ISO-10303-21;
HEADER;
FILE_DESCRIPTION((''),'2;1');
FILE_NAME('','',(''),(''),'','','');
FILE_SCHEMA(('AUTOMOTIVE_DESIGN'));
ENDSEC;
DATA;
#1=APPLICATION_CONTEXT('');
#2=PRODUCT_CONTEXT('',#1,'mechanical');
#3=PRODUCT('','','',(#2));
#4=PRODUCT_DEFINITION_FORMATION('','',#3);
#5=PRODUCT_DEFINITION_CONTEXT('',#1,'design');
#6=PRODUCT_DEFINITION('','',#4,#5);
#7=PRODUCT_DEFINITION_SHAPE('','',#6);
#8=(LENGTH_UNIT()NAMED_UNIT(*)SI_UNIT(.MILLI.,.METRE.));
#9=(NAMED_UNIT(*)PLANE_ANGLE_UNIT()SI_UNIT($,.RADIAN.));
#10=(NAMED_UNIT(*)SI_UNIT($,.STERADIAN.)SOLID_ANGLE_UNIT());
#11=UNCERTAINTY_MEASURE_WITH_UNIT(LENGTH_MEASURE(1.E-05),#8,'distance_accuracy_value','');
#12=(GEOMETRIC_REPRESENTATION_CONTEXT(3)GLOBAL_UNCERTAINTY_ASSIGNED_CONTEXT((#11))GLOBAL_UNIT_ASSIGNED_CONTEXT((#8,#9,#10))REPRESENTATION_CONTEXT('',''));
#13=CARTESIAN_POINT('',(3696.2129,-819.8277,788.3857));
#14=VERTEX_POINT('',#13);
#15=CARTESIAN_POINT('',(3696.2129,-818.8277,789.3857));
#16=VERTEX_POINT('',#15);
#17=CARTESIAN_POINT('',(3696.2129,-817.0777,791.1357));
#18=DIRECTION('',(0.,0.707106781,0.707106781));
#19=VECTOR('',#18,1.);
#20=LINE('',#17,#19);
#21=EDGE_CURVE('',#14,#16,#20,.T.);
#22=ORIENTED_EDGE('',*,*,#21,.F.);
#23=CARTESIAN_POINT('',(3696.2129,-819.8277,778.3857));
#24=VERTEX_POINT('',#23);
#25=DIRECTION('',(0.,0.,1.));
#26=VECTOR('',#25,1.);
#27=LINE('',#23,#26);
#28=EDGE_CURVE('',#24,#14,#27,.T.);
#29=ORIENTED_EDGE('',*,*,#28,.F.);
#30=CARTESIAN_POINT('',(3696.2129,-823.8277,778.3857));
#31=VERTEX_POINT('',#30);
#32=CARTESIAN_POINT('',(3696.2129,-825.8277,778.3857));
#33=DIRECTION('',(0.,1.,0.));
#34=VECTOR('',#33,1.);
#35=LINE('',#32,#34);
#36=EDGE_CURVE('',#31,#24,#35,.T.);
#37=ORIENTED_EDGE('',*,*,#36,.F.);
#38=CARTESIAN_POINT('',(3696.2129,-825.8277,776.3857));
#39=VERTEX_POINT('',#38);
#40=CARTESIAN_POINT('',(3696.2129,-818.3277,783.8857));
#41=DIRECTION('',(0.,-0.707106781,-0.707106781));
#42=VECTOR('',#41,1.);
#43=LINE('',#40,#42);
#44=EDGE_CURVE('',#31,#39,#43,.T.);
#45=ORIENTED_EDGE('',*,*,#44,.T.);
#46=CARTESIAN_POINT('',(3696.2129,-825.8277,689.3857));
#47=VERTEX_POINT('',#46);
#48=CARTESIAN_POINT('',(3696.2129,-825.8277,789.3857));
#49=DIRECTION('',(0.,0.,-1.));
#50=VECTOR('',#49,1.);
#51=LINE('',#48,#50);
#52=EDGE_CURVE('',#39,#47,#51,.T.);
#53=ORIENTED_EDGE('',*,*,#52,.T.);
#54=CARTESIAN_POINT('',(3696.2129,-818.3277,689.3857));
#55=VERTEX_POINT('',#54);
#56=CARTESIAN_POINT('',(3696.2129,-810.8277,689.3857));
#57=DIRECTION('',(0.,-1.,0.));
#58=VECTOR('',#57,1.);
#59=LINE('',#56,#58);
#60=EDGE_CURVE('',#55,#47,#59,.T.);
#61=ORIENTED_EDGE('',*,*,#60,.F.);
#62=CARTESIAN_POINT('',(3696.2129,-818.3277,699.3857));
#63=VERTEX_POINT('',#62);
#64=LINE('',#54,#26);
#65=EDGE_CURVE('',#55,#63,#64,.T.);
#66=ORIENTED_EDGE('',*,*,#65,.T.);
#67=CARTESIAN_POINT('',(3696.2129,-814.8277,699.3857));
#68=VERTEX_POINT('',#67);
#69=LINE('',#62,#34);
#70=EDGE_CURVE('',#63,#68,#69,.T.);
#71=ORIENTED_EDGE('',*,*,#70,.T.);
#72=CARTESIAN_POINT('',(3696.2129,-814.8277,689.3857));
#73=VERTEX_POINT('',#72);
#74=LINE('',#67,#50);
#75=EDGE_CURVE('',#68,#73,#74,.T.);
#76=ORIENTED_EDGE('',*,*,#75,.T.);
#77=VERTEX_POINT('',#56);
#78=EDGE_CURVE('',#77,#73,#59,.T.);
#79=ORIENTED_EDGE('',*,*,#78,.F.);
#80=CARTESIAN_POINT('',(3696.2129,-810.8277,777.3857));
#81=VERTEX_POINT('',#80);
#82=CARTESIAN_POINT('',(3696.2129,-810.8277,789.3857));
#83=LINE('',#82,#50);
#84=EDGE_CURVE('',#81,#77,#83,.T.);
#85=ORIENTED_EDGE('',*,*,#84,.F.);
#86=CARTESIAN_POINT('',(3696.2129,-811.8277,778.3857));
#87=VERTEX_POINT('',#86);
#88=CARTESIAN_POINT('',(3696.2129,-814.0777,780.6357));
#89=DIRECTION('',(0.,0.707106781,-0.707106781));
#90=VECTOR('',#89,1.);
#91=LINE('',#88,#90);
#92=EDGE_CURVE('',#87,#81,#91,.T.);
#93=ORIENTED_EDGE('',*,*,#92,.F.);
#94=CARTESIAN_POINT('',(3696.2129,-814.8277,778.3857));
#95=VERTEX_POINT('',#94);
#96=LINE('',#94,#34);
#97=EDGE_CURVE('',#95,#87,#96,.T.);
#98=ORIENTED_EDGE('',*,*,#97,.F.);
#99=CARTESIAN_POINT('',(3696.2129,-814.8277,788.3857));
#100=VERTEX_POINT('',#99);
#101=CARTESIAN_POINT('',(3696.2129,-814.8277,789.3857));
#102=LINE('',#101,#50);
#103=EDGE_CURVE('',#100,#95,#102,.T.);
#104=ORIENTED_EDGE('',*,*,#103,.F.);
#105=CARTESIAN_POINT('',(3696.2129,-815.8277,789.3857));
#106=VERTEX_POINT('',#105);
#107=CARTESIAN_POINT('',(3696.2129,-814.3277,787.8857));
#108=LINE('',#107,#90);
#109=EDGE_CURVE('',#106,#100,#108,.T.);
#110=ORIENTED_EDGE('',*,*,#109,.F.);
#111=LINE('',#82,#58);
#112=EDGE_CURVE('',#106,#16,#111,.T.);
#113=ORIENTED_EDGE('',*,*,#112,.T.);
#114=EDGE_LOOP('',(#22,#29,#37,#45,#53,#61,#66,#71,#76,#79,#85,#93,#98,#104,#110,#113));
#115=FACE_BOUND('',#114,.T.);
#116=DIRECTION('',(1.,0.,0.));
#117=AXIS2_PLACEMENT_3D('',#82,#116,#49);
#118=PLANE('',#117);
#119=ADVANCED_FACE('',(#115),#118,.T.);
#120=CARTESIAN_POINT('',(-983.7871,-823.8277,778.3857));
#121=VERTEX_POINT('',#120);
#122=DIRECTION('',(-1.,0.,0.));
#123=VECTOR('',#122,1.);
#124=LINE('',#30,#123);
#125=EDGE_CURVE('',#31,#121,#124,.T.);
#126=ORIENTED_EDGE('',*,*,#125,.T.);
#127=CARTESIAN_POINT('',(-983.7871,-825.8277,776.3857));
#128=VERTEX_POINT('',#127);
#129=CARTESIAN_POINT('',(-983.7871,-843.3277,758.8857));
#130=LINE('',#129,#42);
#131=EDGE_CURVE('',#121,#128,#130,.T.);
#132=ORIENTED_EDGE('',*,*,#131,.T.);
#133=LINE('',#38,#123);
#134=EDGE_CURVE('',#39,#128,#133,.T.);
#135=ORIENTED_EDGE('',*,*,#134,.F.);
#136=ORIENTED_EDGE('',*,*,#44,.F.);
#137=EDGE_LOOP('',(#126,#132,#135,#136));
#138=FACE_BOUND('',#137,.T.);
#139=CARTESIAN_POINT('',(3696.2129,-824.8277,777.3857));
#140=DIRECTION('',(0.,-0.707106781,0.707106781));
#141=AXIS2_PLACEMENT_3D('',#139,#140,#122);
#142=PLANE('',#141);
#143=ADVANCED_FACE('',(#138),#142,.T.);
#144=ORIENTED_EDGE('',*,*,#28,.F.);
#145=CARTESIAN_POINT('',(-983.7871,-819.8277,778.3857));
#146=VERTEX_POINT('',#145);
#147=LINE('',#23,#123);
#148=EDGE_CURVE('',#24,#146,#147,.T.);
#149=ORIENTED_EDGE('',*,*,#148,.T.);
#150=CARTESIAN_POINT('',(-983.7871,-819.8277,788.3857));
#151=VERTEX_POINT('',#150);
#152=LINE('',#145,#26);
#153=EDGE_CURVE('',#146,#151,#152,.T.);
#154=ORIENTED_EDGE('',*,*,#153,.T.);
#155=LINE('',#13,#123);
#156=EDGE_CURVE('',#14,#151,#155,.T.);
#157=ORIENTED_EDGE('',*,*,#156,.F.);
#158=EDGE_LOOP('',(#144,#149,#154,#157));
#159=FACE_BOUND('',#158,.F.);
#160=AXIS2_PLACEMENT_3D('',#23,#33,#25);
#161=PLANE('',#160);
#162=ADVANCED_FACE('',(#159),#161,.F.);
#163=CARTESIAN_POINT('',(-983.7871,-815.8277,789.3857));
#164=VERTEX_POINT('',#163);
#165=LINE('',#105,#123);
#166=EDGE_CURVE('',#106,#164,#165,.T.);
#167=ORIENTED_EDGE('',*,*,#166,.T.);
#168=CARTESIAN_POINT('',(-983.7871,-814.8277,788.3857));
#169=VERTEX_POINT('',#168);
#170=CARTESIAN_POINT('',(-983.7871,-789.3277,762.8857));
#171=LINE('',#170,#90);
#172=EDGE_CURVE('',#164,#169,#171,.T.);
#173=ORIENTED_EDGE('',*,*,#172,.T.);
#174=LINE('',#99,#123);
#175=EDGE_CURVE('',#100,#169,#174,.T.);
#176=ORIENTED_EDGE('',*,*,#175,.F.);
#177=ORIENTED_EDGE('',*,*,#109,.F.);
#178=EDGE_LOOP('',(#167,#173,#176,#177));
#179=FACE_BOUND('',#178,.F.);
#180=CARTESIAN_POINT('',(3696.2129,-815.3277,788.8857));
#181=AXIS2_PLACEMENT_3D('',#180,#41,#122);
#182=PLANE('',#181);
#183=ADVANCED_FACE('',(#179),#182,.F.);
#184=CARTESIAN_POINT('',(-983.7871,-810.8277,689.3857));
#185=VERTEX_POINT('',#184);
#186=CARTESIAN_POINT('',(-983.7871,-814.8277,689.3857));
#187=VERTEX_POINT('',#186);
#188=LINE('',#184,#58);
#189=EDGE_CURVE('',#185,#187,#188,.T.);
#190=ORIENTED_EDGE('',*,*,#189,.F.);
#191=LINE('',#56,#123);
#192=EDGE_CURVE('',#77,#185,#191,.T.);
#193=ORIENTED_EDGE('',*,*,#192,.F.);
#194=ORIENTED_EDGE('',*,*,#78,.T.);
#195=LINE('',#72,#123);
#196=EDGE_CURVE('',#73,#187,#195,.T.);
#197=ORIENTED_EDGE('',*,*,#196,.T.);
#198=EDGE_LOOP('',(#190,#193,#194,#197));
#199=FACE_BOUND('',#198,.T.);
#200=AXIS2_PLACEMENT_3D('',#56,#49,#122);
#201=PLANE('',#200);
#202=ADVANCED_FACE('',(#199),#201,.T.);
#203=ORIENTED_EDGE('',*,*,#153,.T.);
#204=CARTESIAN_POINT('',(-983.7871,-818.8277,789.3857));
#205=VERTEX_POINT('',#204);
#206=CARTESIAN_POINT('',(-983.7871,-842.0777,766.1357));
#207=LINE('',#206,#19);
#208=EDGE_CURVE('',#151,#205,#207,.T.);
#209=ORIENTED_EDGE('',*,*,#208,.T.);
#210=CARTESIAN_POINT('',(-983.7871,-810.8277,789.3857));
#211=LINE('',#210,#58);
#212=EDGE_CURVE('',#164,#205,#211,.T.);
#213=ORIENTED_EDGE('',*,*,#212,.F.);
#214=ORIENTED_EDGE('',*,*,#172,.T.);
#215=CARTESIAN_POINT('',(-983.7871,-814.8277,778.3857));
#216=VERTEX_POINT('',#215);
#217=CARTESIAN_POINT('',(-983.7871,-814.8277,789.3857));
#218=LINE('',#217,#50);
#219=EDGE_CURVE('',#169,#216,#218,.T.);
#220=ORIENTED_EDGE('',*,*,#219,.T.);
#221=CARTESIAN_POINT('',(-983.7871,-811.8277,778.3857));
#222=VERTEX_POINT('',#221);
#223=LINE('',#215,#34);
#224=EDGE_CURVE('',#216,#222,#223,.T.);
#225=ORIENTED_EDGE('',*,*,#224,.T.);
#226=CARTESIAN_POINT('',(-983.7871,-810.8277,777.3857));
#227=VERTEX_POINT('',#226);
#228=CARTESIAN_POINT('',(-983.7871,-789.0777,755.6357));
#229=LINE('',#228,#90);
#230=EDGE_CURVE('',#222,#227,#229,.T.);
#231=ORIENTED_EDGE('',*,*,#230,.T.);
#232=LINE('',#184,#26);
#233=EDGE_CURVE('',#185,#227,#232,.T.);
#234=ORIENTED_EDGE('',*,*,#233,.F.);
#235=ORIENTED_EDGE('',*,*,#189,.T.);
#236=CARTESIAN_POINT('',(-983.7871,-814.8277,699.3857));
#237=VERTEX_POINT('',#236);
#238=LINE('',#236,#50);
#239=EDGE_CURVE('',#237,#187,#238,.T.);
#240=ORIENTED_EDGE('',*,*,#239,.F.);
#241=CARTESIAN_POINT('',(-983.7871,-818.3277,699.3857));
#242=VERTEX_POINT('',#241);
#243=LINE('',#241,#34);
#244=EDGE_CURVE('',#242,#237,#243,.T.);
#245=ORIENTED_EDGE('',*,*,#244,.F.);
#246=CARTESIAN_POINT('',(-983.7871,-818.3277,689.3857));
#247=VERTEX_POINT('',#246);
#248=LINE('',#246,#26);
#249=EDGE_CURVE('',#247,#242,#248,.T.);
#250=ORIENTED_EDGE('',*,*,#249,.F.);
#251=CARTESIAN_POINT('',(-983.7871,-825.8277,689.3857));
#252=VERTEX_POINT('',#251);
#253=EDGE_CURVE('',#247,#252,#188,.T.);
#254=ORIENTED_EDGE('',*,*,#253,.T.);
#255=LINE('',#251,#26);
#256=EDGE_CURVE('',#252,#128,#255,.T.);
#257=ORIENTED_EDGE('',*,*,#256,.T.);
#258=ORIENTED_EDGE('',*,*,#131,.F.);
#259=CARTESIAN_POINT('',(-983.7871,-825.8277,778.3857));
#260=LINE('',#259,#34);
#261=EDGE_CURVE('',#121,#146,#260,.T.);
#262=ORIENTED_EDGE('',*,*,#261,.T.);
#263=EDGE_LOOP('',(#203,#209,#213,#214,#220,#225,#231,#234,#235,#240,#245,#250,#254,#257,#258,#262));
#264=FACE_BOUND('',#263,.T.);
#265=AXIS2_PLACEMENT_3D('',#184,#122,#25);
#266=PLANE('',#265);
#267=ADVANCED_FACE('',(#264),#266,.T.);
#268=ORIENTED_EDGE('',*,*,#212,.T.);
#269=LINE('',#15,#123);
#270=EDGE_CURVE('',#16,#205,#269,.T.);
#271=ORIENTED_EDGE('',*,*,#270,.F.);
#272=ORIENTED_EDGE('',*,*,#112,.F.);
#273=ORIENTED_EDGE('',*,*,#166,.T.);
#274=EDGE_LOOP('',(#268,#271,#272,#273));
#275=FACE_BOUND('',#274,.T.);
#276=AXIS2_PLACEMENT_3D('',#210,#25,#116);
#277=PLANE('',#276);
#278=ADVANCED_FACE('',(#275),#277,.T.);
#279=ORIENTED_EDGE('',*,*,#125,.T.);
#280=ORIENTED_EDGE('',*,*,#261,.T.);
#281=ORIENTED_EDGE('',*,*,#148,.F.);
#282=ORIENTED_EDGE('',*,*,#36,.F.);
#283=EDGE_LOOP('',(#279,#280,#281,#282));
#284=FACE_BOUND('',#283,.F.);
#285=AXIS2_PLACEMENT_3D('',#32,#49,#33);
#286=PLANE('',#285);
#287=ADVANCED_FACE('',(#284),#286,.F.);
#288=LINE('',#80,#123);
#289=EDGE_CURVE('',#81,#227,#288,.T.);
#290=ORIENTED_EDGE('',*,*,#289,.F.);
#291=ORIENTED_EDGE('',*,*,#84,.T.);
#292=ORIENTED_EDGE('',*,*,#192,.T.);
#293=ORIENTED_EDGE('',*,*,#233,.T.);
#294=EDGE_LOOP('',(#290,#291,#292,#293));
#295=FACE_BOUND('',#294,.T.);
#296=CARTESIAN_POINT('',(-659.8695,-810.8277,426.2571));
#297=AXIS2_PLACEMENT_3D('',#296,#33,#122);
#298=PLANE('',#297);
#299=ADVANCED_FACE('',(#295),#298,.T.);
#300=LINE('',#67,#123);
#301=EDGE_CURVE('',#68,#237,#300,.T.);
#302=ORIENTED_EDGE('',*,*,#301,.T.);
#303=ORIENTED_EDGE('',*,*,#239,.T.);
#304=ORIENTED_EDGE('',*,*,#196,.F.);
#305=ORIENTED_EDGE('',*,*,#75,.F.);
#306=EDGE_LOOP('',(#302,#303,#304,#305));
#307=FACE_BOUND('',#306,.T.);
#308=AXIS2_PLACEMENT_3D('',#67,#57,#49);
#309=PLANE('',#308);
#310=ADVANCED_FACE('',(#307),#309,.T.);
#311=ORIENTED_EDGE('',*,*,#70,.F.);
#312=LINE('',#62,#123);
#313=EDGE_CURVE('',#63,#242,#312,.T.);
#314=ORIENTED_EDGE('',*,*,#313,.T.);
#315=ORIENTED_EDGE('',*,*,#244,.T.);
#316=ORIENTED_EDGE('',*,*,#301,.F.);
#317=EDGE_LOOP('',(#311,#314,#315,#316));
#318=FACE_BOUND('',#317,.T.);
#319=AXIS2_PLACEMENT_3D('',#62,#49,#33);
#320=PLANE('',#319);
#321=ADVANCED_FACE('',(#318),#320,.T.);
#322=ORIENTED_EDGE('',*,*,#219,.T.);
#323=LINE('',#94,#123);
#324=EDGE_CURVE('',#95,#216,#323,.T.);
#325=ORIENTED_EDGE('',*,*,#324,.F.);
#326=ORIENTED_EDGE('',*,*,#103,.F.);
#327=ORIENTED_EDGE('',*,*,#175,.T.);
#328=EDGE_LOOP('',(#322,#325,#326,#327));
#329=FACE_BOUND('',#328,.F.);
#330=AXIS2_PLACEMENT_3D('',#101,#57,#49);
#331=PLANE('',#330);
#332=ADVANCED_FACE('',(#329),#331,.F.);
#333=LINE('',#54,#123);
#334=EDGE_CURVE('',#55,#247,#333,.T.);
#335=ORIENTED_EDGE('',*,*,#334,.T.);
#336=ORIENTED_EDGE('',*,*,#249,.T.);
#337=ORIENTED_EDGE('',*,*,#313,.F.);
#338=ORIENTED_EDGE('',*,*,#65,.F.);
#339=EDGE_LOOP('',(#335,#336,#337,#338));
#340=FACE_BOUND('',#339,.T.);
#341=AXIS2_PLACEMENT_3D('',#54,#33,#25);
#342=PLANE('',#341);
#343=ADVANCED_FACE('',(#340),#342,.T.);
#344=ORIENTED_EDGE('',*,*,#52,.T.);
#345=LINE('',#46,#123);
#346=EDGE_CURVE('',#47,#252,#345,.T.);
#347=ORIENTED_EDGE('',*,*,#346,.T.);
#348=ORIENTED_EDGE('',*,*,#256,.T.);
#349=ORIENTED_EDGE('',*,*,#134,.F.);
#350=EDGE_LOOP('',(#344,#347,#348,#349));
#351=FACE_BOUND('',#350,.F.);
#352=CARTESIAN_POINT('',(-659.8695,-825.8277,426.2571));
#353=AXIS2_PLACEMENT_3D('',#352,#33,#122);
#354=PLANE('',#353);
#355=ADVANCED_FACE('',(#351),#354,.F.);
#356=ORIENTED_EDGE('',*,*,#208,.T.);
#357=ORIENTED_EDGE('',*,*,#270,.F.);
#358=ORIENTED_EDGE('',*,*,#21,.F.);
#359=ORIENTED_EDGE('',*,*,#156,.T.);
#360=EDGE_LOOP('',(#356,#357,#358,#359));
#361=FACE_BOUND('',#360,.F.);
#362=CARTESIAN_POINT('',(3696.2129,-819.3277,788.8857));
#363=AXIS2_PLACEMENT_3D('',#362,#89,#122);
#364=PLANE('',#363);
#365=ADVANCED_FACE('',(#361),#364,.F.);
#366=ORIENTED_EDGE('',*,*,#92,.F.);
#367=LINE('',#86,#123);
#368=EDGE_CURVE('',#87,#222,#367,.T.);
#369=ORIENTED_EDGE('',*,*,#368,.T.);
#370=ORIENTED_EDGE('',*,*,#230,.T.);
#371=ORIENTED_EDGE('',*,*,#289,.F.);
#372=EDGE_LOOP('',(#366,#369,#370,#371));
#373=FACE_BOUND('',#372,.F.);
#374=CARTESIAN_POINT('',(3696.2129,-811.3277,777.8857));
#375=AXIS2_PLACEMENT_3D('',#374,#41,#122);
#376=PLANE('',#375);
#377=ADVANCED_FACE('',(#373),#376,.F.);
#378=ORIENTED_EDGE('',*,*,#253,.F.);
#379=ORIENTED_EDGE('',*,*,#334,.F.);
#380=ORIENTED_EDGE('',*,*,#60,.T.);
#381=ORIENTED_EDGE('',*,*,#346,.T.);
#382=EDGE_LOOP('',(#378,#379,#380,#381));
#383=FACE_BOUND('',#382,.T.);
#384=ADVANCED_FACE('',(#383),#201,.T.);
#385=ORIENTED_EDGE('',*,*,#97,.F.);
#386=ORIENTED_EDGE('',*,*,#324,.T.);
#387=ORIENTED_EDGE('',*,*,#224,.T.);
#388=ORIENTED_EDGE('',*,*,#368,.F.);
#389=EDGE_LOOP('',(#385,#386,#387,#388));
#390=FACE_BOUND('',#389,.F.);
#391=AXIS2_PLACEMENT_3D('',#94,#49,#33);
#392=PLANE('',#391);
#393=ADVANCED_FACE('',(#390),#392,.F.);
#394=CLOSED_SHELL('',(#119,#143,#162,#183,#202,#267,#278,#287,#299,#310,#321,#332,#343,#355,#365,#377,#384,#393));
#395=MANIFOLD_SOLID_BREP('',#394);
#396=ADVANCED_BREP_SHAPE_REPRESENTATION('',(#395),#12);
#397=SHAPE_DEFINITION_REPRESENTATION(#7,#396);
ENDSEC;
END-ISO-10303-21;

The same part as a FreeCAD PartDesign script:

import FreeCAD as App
import Part
import Sketcher

V = App.Vector
Q = App.Units.Quantity


def edges_at(feature, points):
    """Names of the edges that pass closest to the given points."""
    edges = feature.Shape.Edges
    near = lambda p: min(range(len(edges)), key=lambda i: edges[i].distToShape(Part.Vertex(*p))[0])
    return sorted({f"Edge{near(p) + 1}" for p in points})

doc = App.newDocument("Part")
body = doc.addObject("PartDesign::Body", "Body")

# Sketch on XZ plane
sketch1 = doc.addObject("Sketcher::SketchObject", "Sketch")
body.addObject(sketch1)
sketch1.AttachmentSupport = (doc.XZ_Plane, [""])
sketch1.MapMode = "FlatFace"
sketch1.AttachmentOffset = App.Placement(V(0, 0, 810.8277), App.Rotation())
sketch1.addGeometry(Part.LineSegment(V(-984, 689, 0), V(-984, 789, 0)), False)
sketch1.addGeometry(Part.LineSegment(V(-984, 789, 0), V(3696, 789, 0)), False)
sketch1.addGeometry(Part.LineSegment(V(3696, 789, 0), V(3696, 689, 0)), False)
sketch1.addGeometry(Part.LineSegment(V(3696, 689, 0), V(-984, 689, 0)), False)
sketch1.addConstraint(Sketcher.Constraint("Coincident", 0, 2, 1, 1))
sketch1.addConstraint(Sketcher.Constraint("Coincident", 1, 2, 2, 1))
sketch1.addConstraint(Sketcher.Constraint("Coincident", 2, 2, 3, 1))
sketch1.addConstraint(Sketcher.Constraint("Coincident", 3, 2, 0, 1))
sketch1.addConstraint(Sketcher.Constraint("Vertical", 0))
sketch1.addConstraint(Sketcher.Constraint("Horizontal", 1))
sketch1.addConstraint(Sketcher.Constraint("Vertical", 2))
sketch1.addConstraint(Sketcher.Constraint("Horizontal", 3))
sketch1.addConstraint(Sketcher.Constraint("DistanceX", 1, 1, 1, 2, Q("4680 mm")))
sketch1.addConstraint(Sketcher.Constraint("DistanceY", 0, 1, 0, 2, Q("100 mm")))
sketch1.addConstraint(Sketcher.Constraint("DistanceX", 0, 2, -1, 1, Q("983.787 mm")))
sketch1.addConstraint(Sketcher.Constraint("DistanceY", -1, 1, 0, 2, Q("789.3857 mm")))
pad1 = doc.addObject("PartDesign::Pad", "Pad")
body.addObject(pad1)
pad1.Profile = sketch1
pad1.Length = 15

# Sketch on YZ plane
sketch2 = doc.addObject("Sketcher::SketchObject", "Sketch001")
body.addObject(sketch2)
sketch2.AttachmentSupport = (doc.YZ_Plane, [""])
sketch2.MapMode = "FlatFace"
sketch2.AttachmentOffset = App.Placement(V(0, 0, 3696.2129), App.Rotation())
sketch2.addGeometry(Part.LineSegment(V(-810.8, 778.4, 0), V(-810.8, 789.4, 0)), False)
sketch2.addGeometry(Part.LineSegment(V(-810.8, 789.4, 0), V(-814.8, 789.4, 0)), False)
sketch2.addGeometry(Part.LineSegment(V(-814.8, 789.4, 0), V(-814.8, 778.4, 0)), False)
sketch2.addGeometry(Part.LineSegment(V(-814.8, 778.4, 0), V(-810.8, 778.4, 0)), False)
sketch2.addGeometry(Part.LineSegment(V(-819.8, 778.4, 0), V(-819.8, 789.4, 0)), False)
sketch2.addGeometry(Part.LineSegment(V(-819.8, 789.4, 0), V(-825.8, 789.4, 0)), False)
sketch2.addGeometry(Part.LineSegment(V(-825.8, 789.4, 0), V(-825.8, 778.4, 0)), False)
sketch2.addGeometry(Part.LineSegment(V(-825.8, 778.4, 0), V(-819.8, 778.4, 0)), False)
sketch2.addGeometry(Part.LineSegment(V(-818.3, 689.4, 0), V(-814.8, 689.4, 0)), False)
sketch2.addGeometry(Part.LineSegment(V(-814.8, 689.4, 0), V(-814.8, 699.4, 0)), False)
sketch2.addGeometry(Part.LineSegment(V(-814.8, 699.4, 0), V(-818.3, 699.4, 0)), False)
sketch2.addGeometry(Part.LineSegment(V(-818.3, 699.4, 0), V(-818.3, 689.4, 0)), False)
sketch2.addConstraint(Sketcher.Constraint("Coincident", 0, 2, 1, 1))
sketch2.addConstraint(Sketcher.Constraint("Coincident", 1, 2, 2, 1))
sketch2.addConstraint(Sketcher.Constraint("Coincident", 2, 2, 3, 1))
sketch2.addConstraint(Sketcher.Constraint("Coincident", 3, 2, 0, 1))
sketch2.addConstraint(Sketcher.Constraint("Coincident", 4, 2, 5, 1))
sketch2.addConstraint(Sketcher.Constraint("Coincident", 5, 2, 6, 1))
sketch2.addConstraint(Sketcher.Constraint("Coincident", 6, 2, 7, 1))
sketch2.addConstraint(Sketcher.Constraint("Coincident", 7, 2, 4, 1))
sketch2.addConstraint(Sketcher.Constraint("Coincident", 8, 2, 9, 1))
sketch2.addConstraint(Sketcher.Constraint("Coincident", 9, 2, 10, 1))
sketch2.addConstraint(Sketcher.Constraint("Coincident", 10, 2, 11, 1))
sketch2.addConstraint(Sketcher.Constraint("Coincident", 11, 2, 8, 1))
sketch2.addConstraint(Sketcher.Constraint("Vertical", 0))
sketch2.addConstraint(Sketcher.Constraint("Horizontal", 1))
sketch2.addConstraint(Sketcher.Constraint("Vertical", 2))
sketch2.addConstraint(Sketcher.Constraint("Horizontal", 3))
sketch2.addConstraint(Sketcher.Constraint("Vertical", 4))
sketch2.addConstraint(Sketcher.Constraint("Horizontal", 5))
sketch2.addConstraint(Sketcher.Constraint("Vertical", 6))
sketch2.addConstraint(Sketcher.Constraint("Horizontal", 7))
sketch2.addConstraint(Sketcher.Constraint("Horizontal", 8))
sketch2.addConstraint(Sketcher.Constraint("Vertical", 9))
sketch2.addConstraint(Sketcher.Constraint("Horizontal", 10))
sketch2.addConstraint(Sketcher.Constraint("Vertical", 11))
sketch2.addConstraint(Sketcher.Constraint("Horizontal", 1, 2, 4, 2))
sketch2.addConstraint(Sketcher.Constraint("Horizontal", 3, 2, 6, 2))
sketch2.addConstraint(Sketcher.Constraint("Vertical", 2, 2, 8, 2))
sketch2.addConstraint(Sketcher.Constraint("DistanceX", 1, 2, 1, 1, Q("4 mm")))
sketch2.addConstraint(Sketcher.Constraint("DistanceY", 0, 1, 0, 2, Q("11 mm")))
sketch2.addConstraint(Sketcher.Constraint("DistanceY", 9, 1, 9, 2, Q("10 mm")))
sketch2.addConstraint(Sketcher.Constraint("DistanceX", 4, 2, 1, 2, Q("5 mm")))
sketch2.addConstraint(Sketcher.Constraint("DistanceX", 5, 2, 1, 2, Q("11 mm")))
sketch2.addConstraint(Sketcher.Constraint("DistanceX", 8, 1, 8, 2, Q("3.5 mm")))
sketch2.addConstraint(Sketcher.Constraint("DistanceY", 8, 2, 2, 2, Q("89 mm")))
sketch2.addConstraint(Sketcher.Constraint("DistanceX", 0, 2, -1, 1, Q("810.8277 mm")))
sketch2.addConstraint(Sketcher.Constraint("DistanceY", -1, 1, 0, 2, Q("789.3857 mm")))
pocket1 = doc.addObject("PartDesign::Pocket", "Pocket")
body.addObject(pocket1)
pocket1.Profile = sketch2
pocket1.Length = 4680
doc.recompute()

chamfer = doc.addObject("PartDesign::Chamfer", "Chamfer")
body.addObject(chamfer)
chamfer.Base = (pocket1, edges_at(pocket1, [(1356.213, -825.828, 778.386)]))
chamfer.Size = 2
doc.recompute()

chamfer2 = doc.addObject("PartDesign::Chamfer", "Chamfer001")
body.addObject(chamfer2)
chamfer2.Base = (chamfer, edges_at(chamfer, [(1356.213, -814.828, 789.386), (1356.213, -819.828, 789.386), (1356.213, -810.828, 778.386)]))
chamfer2.Size = 1

doc.recompute()
